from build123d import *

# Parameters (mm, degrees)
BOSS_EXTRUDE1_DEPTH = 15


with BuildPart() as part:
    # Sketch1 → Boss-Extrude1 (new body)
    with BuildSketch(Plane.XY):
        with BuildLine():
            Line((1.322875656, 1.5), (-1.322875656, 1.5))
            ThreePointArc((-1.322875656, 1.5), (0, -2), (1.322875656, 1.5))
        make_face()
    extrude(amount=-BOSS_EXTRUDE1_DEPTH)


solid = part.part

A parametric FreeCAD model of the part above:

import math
import FreeCAD as App
import Part
import Sketcher

V = App.Vector
Q = App.Units.Quantity

doc = App.newDocument("Part")
body = doc.addObject("PartDesign::Body", "Body")

sketch1 = body.newObject("Sketcher::SketchObject", "Sketch")
sketch1.AttachmentSupport = (doc.getObject("XY_Plane"), [""])
sketch1.MapMode = "FlatFace"
sketch1.addGeometry(Part.LineSegment(V(1.3, 1.5, 0), V(-1.3, 1.5, 0)), False)
sketch1.addGeometry(Part.ArcOfCircle(Part.Circle(V(0, 0, 0), V(0, 0, 1), 2), math.radians(131), math.radians(409)), False)
sketch1.addConstraint(Sketcher.Constraint("Coincident", 0, 1, 1, 2))
sketch1.addConstraint(Sketcher.Constraint("Coincident", 1, 1, 0, 2))
sketch1.addConstraint(Sketcher.Constraint("Horizontal", 0))
sketch1.addConstraint(Sketcher.Constraint("Coincident", 1, 3, -1, 1))
sketch1.addConstraint(Sketcher.Constraint("Radius", 1, Q("2 mm")))
sketch1.addConstraint(Sketcher.Constraint("DistanceY", -1, 1, 0, 1, Q("1.5 mm")))
pad1 = body.newObject("PartDesign::Pad", "Pad")
pad1.Profile = sketch1
pad1.Length = 15
pad1.Reversed = True

doc.recompute()
